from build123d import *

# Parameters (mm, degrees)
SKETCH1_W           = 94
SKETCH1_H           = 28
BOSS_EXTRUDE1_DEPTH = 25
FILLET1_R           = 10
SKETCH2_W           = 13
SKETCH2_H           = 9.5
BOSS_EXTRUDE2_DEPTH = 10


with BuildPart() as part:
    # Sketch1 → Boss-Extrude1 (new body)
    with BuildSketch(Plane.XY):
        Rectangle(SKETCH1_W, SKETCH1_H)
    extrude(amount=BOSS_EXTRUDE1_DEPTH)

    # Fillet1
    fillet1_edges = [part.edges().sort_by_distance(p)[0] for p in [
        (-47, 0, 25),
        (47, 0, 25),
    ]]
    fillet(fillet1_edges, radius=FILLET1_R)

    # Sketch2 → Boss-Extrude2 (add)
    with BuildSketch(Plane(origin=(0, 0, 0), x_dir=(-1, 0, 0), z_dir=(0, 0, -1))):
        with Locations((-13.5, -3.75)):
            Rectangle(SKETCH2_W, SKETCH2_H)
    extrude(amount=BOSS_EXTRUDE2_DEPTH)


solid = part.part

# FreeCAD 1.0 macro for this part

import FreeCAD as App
import Part
import Sketcher

V = App.Vector
Q = App.Units.Quantity


def edges_at(feature, points):
    """Names of the edges that pass closest to the given points."""
    edges = feature.Shape.Edges
    near = lambda p: min(range(len(edges)), key=lambda i: edges[i].distToShape(Part.Vertex(*p))[0])
    return sorted({f"Edge{near(p) + 1}" for p in points})

doc = App.newDocument("Part")
body = doc.addObject("PartDesign::Body", "Body")

sketch1 = body.newObject("Sketcher::SketchObject", "Sketch")
sketch1.AttachmentSupport = (doc.getObject("XY_Plane"), [""])
sketch1.MapMode = "FlatFace"
sketch1.addGeometry(Part.LineSegment(V(-47, 14, 0), V(-47, -14, 0)), False)
sketch1.addGeometry(Part.LineSegment(V(-47, -14, 0), V(47, -14, 0)), False)
sketch1.addGeometry(Part.LineSegment(V(47, -14, 0), V(47, 14, 0)), False)
sketch1.addGeometry(Part.LineSegment(V(47, 14, 0), V(-47, 14, 0)), False)
sketch1.addConstraint(Sketcher.Constraint("Coincident", 0, 2, 1, 1))
sketch1.addConstraint(Sketcher.Constraint("Coincident", 1, 2, 2, 1))
sketch1.addConstraint(Sketcher.Constraint("Coincident", 2, 2, 3, 1))
sketch1.addConstraint(Sketcher.Constraint("Coincident", 3, 2, 0, 1))
sketch1.addConstraint(Sketcher.Constraint("Vertical", 0))
sketch1.addConstraint(Sketcher.Constraint("Horizontal", 1))
sketch1.addConstraint(Sketcher.Constraint("Vertical", 2))
sketch1.addConstraint(Sketcher.Constraint("Horizontal", 3))
sketch1.addConstraint(Sketcher.Constraint("Symmetric", 0, 2, 2, 2, -1, 1))
sketch1.addConstraint(Sketcher.Constraint("DistanceX", 1, 1, 1, 2, Q("94 mm")))
sketch1.addConstraint(Sketcher.Constraint("DistanceY", 0, 2, 0, 1, Q("28 mm")))
pad1 = body.newObject("PartDesign::Pad", "Pad")
pad1.Profile = sketch1
pad1.Length = 25
doc.recompute()

fillet = body.newObject("PartDesign::Fillet", "Fillet")
fillet.Base = (pad1, edges_at(pad1, [(-47, 0, 25), (47, 0, 25)]))
fillet.Radius = 10

sketch2 = body.newObject("Sketcher::SketchObject", "Sketch001")
sketch2.AttachmentSupport = (doc.getObject("XY_Plane"), [""])
sketch2.MapMode = "FlatFace"
sketch2.addGeometry(Part.LineSegment(V(20, 1, 0), V(20, -8.5, 0)), False)
sketch2.addGeometry(Part.LineSegment(V(20, -8.5, 0), V(7, -8.5, 0)), False)
sketch2.addGeometry(Part.LineSegment(V(7, -8.5, 0), V(7, 1, 0)), False)
sketch2.addGeometry(Part.LineSegment(V(7, 1, 0), V(20, 1, 0)), False)
sketch2.addConstraint(Sketcher.Constraint("Coincident", 0, 2, 1, 1))
sketch2.addConstraint(Sketcher.Constraint("Coincident", 1, 2, 2, 1))
sketch2.addConstraint(Sketcher.Constraint("Coincident", 2, 2, 3, 1))
sketch2.addConstraint(Sketcher.Constraint("Coincident", 3, 2, 0, 1))
sketch2.addConstraint(Sketcher.Constraint("Vertical", 0))
sketch2.addConstraint(Sketcher.Constraint("Horizontal", 1))
sketch2.addConstraint(Sketcher.Constraint("Vertical", 2))
sketch2.addConstraint(Sketcher.Constraint("Horizontal", 3))
sketch2.addConstraint(Sketcher.Constraint("DistanceX", 1, 2, 1, 1, Q("13 mm")))
sketch2.addConstraint(Sketcher.Constraint("DistanceY", 0, 2, 0, 1, Q("9.5 mm")))
sketch2.addConstraint(Sketcher.Constraint("DistanceX", -1, 1, 0, 2, Q("20 mm")))
sketch2.addConstraint(Sketcher.Constraint("DistanceY", -1, 1, 2, 2, Q("1 mm")))
pad2 = body.newObject("PartDesign::Pad", "Pad001")
pad2.Profile = sketch2
pad2.Length = 10
pad2.Reversed = True

doc.recompute()
